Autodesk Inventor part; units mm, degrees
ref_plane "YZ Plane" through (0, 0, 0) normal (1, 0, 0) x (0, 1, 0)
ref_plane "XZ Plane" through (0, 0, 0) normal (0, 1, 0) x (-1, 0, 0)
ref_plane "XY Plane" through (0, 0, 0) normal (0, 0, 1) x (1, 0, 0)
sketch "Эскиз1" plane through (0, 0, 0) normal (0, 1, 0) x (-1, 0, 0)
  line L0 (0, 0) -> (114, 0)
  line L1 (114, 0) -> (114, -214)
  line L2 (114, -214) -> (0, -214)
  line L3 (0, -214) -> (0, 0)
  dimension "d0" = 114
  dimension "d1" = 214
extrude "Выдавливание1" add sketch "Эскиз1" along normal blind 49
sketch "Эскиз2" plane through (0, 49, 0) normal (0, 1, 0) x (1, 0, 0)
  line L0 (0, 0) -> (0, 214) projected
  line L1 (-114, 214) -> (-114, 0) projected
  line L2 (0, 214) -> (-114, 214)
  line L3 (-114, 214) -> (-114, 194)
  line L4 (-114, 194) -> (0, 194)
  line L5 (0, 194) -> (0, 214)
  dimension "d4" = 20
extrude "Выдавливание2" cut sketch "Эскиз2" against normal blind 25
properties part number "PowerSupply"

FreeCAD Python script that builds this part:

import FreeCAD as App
import Part
import Sketcher
from FreeCAD import Vector


def add_polygon(sketch, points):
    """Adds a closed chain of lines whose ends are joined by coincident constraints."""
    first, n = sketch.GeometryCount, len(points)
    for a, b in zip(points, points[1:] + points[:1]):
        sketch.addGeometry(Part.LineSegment(App.Vector(*a, 0), App.Vector(*b, 0)), False)
    for i in range(n):
        sketch.addConstraint(Sketcher.Constraint("Coincident", first + i, 2, first + (i + 1) % n, 1))

doc = App.newDocument("Part")
params = doc.addObject("Spreadsheet::Sheet", "Params")
for row, (alias, value) in enumerate([
    ("sketch1_width", "114 mm"),
    ("sketch1_height", "214 mm"),
    ("pad1_length", "49 mm"),
    ("sketch2_height", "20 mm"),
    ("sketch2_width", "114 mm"),
    ("pocket1_length", "25 mm"),
], start=1):
    params.set(f"A{row}", alias)
    params.set(f"B{row}", "=" + value)
    params.setAlias(f"B{row}", alias)

body = doc.addObject("PartDesign::Body", "Body")

sketch1 = body.newObject("Sketcher::SketchObject", "Sketch")
sketch1.AttachmentSupport = (doc.getObject("XZ_Plane"), [""])
sketch1.MapMode = "FlatFace"
add_polygon(sketch1, [(-114, 0), (0, 0), (0, -214), (-114, -214)])
sketch1.addConstraint([
    Sketcher.Constraint("Horizontal", 0),
    Sketcher.Constraint("Vertical", 1),
    Sketcher.Constraint("Horizontal", 2),
    Sketcher.Constraint("Vertical", 3),
    Sketcher.Constraint("Coincident", 0, 2, -1, 1),
    Sketcher.Constraint("DistanceX", 0, 1, 0, 2, 114.0),
    Sketcher.Constraint("DistanceY", 1, 2, 1, 1, 214.0),
])
sketch1.setExpression("Constraints[9]", "Params.sketch1_width")
sketch1.setExpression("Constraints[10]", "Params.sketch1_height")
pad1 = body.newObject("PartDesign::Pad", "Pad")
pad1.Profile = sketch1
pad1.setExpression("Length", "Params.pad1_length")
pad1.Reversed = True

sketch2 = body.newObject("Sketcher::SketchObject", "Sketch001")
sketch2.AttachmentSupport = (doc.getObject("XZ_Plane"), [""])
sketch2.MapMode = "FlatFace"
sketch2.AttachmentOffset = App.Placement(Vector(0, 0, -49), App.Rotation())
add_polygon(sketch2, [(-114, -194), (0, -194), (0, -214), (-114, -214)])
sketch2.addConstraint([
    Sketcher.Constraint("Horizontal", 0),
    Sketcher.Constraint("Vertical", 1),
    Sketcher.Constraint("Horizontal", 2),
    Sketcher.Constraint("Vertical", 3),
    Sketcher.Constraint("PointOnObject", 0, 2, -2),
    Sketcher.Constraint("DistanceY", 1, 2, 1, 1, 20.0),
    Sketcher.Constraint("DistanceX", 0, 1, 0, 2, 114.0),
    Sketcher.Constraint("DistanceY", 0, 2, -1, 1, 194.0),
])
sketch2.setExpression("Constraints[9]", "Params.sketch2_height")
sketch2.setExpression("Constraints[10]", "Params.sketch2_width")
pocket1 = body.newObject("PartDesign::Pocket", "Pocket")
pocket1.Profile = sketch2
pocket1.setExpression("Length", "Params.pocket1_length")
pocket1.Reversed = True

doc.recompute()
